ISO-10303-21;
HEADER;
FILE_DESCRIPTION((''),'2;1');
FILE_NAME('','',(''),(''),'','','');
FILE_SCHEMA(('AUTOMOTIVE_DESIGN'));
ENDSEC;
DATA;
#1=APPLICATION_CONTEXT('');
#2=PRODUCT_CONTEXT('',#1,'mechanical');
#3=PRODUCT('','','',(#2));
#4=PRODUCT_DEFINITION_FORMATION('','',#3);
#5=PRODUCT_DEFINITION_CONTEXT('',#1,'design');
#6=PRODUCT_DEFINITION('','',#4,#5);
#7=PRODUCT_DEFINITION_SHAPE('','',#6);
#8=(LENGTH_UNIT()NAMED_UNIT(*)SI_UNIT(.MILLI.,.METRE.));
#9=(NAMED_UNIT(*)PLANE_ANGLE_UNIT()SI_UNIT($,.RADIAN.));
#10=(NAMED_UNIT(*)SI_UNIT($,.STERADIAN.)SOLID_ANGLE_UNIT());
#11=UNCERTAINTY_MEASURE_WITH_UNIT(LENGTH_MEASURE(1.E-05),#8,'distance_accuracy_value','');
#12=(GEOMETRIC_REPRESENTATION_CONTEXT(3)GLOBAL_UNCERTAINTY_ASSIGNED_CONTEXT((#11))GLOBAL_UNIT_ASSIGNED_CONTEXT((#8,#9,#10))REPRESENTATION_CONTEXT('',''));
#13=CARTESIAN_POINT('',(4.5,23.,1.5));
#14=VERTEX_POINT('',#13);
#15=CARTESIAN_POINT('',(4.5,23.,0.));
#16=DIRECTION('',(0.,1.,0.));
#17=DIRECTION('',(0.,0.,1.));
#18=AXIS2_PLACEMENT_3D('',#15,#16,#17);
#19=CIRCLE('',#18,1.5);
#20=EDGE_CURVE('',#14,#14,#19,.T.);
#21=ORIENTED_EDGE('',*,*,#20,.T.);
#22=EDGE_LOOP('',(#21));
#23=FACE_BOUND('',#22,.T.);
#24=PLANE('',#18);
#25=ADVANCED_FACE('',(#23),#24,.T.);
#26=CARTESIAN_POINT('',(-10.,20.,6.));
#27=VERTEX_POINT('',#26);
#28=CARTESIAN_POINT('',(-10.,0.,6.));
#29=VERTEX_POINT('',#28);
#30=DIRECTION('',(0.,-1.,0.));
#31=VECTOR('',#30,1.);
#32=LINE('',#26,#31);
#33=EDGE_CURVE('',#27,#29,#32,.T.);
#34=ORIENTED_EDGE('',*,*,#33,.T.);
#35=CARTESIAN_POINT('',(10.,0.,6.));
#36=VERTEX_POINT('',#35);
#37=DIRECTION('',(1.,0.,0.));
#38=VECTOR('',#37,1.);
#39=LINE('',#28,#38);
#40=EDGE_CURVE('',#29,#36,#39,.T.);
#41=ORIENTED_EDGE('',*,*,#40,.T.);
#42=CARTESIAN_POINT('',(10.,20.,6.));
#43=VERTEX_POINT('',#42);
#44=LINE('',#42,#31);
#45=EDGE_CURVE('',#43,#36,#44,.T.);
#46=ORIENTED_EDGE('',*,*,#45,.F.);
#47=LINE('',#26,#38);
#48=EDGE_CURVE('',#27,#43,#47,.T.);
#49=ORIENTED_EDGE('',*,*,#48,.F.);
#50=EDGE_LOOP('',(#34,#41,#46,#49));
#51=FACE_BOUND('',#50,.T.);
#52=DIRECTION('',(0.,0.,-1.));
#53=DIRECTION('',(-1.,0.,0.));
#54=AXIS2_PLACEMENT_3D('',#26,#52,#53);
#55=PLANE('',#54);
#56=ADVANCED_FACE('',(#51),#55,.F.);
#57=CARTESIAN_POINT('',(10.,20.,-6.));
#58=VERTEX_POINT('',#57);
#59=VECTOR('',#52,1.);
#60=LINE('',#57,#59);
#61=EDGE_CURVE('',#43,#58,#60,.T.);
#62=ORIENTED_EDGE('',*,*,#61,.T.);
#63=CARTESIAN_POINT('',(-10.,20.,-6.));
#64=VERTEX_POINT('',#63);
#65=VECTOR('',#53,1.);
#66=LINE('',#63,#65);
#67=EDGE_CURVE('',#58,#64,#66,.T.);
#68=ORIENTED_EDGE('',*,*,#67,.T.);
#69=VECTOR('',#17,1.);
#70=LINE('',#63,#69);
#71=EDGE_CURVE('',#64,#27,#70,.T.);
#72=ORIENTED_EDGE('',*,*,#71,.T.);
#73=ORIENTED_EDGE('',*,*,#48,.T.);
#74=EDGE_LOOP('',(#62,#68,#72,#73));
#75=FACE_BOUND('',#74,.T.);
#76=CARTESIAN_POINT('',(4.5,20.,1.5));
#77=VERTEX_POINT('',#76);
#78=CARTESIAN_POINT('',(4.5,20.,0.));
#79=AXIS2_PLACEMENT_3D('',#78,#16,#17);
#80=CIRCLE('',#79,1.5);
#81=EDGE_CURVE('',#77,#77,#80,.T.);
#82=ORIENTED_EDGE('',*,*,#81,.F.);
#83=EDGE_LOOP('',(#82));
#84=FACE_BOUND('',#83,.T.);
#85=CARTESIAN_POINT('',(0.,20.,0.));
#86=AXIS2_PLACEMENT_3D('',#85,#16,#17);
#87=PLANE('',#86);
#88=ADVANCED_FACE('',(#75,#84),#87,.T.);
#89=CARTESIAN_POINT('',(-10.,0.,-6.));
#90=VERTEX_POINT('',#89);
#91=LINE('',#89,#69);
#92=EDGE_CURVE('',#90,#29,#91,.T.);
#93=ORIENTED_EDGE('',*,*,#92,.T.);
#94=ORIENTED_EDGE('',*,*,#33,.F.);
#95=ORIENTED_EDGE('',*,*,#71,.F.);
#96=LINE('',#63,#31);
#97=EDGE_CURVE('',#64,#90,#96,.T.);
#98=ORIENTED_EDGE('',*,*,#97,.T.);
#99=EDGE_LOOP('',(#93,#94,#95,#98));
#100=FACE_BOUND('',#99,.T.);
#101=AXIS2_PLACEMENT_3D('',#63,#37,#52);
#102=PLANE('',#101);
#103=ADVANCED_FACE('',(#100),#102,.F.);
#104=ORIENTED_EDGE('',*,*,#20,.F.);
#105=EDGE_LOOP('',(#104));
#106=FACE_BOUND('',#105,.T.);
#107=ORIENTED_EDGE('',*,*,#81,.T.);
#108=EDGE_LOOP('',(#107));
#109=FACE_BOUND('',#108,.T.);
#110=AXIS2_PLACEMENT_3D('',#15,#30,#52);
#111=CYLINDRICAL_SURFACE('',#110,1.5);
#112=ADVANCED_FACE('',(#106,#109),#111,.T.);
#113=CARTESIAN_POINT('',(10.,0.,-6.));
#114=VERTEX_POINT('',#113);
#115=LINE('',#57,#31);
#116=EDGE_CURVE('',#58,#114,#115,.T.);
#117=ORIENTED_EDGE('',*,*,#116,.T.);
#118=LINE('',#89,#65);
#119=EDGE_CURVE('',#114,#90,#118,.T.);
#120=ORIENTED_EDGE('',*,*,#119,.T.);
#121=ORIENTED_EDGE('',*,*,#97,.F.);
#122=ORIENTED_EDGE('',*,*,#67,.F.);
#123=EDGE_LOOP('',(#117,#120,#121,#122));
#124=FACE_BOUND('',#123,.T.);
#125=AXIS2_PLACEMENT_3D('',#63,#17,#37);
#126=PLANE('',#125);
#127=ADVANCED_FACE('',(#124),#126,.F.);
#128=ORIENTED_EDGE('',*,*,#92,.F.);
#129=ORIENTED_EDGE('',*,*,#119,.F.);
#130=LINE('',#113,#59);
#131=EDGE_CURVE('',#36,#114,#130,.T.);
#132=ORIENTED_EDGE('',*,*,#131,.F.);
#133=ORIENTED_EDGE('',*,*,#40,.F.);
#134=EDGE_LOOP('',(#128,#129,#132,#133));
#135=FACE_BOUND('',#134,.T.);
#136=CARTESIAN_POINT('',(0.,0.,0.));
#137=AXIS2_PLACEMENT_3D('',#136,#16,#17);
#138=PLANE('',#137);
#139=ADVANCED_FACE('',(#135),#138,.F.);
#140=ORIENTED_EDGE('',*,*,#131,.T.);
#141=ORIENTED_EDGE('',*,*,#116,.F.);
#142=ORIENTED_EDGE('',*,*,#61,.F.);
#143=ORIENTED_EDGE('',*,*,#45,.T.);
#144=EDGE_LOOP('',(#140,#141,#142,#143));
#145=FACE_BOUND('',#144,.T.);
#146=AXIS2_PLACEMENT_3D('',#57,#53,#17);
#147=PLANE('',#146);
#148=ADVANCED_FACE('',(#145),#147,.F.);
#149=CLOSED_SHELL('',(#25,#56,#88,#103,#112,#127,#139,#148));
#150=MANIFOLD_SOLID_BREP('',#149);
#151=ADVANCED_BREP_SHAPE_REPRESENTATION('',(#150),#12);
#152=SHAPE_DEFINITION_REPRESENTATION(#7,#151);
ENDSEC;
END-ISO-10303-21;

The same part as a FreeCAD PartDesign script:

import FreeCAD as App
import Part
import Sketcher


def add_polygon(sketch, points):
    """Adds a closed chain of lines whose ends are joined by coincident constraints."""
    first, n = sketch.GeometryCount, len(points)
    for a, b in zip(points, points[1:] + points[:1]):
        sketch.addGeometry(Part.LineSegment(App.Vector(*a, 0), App.Vector(*b, 0)), False)
    for i in range(n):
        sketch.addConstraint(Sketcher.Constraint("Coincident", first + i, 2, first + (i + 1) % n, 1))

doc = App.newDocument("Part")
params = doc.addObject("Spreadsheet::Sheet", "Params")
for row, (alias, value) in enumerate([
    ("sketch1_width", "20 mm"),
    ("sketch1_height", "12 mm"),
    ("pad1_length", "20 mm"),
    ("sketch2_diameter", "3 mm"),
    ("pad2_length", "3 mm"),
], start=1):
    params.set(f"A{row}", alias)
    params.set(f"B{row}", "=" + value)
    params.setAlias(f"B{row}", alias)

body = doc.addObject("PartDesign::Body", "Body")

# Sketch on XZ plane
sketch1 = body.newObject("Sketcher::SketchObject", "Sketch")
sketch1.AttachmentSupport = (doc.getObject("XZ_Plane"), [""])
sketch1.MapMode = "FlatFace"
add_polygon(sketch1, [(-10, -6), (-10, 6), (10, 6), (10, -6)])  # lines 0-3
sketch1.addConstraint([
    Sketcher.Constraint("Vertical", 0),
    Sketcher.Constraint("Horizontal", 1),
    Sketcher.Constraint("Vertical", 2),
    Sketcher.Constraint("Horizontal", 3),
    Sketcher.Constraint("Symmetric", 0, 2, 2, 2, -1, 1),
    Sketcher.Constraint("DistanceX", 1, 1, 1, 2, 20.0),
    Sketcher.Constraint("DistanceY", 0, 1, 0, 2, 12.0),
])
sketch1.setExpression("Constraints[9]", "Params.sketch1_width")
sketch1.setExpression("Constraints[10]", "Params.sketch1_height")
pad1 = body.newObject("PartDesign::Pad", "Pad")
pad1.Profile = sketch1
pad1.setExpression("Length", "Params.pad1_length")
pad1.Reversed = True

# Sketch on XZ plane
sketch2 = body.newObject("Sketcher::SketchObject", "Sketch001")
sketch2.AttachmentSupport = (doc.getObject("XZ_Plane"), [""])
sketch2.MapMode = "FlatFace"
sketch2.AttachmentOffset = App.Placement(App.Vector(0, 0, -20), App.Rotation())
sketch2.addGeometry(Part.Circle(App.Vector(4.5, 0, 0), App.Vector(0, 0, 1), 1.5), False)
sketch2.addConstraint([
    Sketcher.Constraint("PointOnObject", 0, 3, -1),
    Sketcher.Constraint("Diameter", 0, 3.0),
    Sketcher.Constraint("DistanceX", -1, 1, 0, 3, 4.5),
])
sketch2.setExpression("Constraints[1]", "Params.sketch2_diameter")
pad2 = body.newObject("PartDesign::Pad", "Pad001")
pad2.Profile = sketch2
pad2.setExpression("Length", "Params.pad2_length")
pad2.Reversed = True

doc.recompute()
